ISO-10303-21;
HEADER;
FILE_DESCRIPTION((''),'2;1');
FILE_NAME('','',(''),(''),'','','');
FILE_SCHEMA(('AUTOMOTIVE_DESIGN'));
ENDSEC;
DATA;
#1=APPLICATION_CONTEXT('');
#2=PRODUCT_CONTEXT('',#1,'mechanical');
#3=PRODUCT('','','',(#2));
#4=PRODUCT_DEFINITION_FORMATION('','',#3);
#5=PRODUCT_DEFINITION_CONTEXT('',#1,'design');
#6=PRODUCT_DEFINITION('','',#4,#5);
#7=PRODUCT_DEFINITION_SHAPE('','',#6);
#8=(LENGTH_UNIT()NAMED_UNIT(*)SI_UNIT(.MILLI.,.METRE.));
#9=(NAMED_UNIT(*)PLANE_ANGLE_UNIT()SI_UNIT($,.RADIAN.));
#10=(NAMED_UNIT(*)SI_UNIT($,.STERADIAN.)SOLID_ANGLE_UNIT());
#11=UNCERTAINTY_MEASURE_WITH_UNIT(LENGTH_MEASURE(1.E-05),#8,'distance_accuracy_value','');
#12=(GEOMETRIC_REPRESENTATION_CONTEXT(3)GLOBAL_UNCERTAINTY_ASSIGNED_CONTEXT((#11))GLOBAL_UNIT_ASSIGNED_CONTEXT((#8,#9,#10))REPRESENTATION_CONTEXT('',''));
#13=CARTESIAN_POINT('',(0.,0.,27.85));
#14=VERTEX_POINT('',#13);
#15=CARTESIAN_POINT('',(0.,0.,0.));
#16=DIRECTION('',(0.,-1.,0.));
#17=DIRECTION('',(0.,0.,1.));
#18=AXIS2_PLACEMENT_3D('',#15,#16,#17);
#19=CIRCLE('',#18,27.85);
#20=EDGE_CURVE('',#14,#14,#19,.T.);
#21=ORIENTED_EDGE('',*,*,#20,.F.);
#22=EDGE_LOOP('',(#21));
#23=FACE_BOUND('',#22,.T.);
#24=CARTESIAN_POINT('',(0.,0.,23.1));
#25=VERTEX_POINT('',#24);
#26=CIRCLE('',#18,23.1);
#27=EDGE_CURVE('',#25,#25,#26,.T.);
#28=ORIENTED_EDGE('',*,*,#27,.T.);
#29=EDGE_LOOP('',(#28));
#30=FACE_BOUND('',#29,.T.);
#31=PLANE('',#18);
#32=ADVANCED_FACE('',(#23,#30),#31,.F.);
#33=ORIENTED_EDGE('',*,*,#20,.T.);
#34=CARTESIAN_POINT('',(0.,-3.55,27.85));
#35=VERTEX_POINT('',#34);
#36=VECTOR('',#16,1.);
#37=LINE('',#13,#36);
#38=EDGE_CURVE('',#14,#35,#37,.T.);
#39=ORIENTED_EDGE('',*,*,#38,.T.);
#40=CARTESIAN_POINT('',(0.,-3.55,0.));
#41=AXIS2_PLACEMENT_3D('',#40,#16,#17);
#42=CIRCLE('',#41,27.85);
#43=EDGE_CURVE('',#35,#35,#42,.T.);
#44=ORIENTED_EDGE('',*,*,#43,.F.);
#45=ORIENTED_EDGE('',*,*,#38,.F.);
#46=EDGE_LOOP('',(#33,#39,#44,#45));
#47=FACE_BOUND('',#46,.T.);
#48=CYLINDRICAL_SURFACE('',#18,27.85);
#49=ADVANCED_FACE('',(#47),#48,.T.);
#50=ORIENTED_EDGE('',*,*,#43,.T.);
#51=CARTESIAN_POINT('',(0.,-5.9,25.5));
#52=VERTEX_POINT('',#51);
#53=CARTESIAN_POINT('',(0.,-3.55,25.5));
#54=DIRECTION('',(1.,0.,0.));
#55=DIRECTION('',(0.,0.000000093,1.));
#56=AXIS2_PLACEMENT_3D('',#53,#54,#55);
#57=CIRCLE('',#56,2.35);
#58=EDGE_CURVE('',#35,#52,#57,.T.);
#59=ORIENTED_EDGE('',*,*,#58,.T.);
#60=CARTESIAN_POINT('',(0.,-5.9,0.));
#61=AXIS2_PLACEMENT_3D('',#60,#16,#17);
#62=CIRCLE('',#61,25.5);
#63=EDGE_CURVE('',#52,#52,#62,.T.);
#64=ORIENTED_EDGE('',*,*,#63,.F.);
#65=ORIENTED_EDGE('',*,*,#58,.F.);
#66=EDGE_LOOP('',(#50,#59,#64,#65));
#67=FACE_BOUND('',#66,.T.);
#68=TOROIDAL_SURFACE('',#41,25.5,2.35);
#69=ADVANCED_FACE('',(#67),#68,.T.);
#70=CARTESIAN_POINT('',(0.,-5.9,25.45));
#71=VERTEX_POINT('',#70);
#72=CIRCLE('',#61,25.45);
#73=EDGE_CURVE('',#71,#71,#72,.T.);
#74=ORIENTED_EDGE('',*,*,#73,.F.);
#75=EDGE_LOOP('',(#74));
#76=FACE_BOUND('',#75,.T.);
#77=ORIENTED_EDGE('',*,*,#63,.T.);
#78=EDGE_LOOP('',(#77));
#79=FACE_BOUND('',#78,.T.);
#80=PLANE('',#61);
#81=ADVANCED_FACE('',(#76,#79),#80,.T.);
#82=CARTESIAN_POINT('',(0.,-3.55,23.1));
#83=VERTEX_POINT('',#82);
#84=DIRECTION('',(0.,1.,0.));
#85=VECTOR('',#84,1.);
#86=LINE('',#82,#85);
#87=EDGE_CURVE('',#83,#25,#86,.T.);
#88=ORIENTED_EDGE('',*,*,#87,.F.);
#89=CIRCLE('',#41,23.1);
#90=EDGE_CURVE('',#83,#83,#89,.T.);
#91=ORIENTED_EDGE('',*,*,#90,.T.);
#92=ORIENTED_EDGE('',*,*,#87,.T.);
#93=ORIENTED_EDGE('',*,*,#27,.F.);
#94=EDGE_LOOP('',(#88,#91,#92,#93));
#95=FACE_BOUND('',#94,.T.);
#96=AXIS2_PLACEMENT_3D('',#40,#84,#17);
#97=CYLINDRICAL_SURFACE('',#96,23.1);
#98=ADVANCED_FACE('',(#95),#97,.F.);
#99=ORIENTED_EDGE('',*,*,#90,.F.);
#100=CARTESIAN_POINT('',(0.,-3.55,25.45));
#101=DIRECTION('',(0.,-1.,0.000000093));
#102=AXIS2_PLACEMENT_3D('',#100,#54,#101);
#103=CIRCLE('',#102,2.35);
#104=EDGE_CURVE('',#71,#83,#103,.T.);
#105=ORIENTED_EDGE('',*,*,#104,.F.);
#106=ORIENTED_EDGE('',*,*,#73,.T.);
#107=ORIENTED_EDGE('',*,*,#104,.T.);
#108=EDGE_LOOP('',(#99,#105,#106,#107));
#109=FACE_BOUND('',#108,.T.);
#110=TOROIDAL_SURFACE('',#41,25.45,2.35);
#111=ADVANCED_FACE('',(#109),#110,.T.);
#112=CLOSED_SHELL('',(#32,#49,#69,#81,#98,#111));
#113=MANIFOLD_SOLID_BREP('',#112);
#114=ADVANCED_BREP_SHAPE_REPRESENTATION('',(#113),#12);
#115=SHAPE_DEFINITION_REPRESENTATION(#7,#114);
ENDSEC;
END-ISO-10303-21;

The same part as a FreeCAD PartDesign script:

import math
import FreeCAD as App
import Part
import Sketcher
Q = App.Units.Quantity

doc = App.newDocument("Part")
body = doc.addObject("PartDesign::Body", "Body")

sketch1 = doc.addObject("Sketcher::SketchObject", "Sketch")
body.addObject(sketch1)
sketch1.AttachmentSupport = (doc.YZ_Plane, [""])
sketch1.MapMode = "FlatFace"
sketch1.addGeometry([
    Part.LineSegment(App.Vector(-3.55, 23.1, 0), App.Vector(0, 23.1, 0)),
    Part.LineSegment(App.Vector(0, 23.1, 0), App.Vector(0, 27.85, 0)),
    Part.LineSegment(App.Vector(0, 27.85, 0), App.Vector(-3.55, 27.85, 0)),
    Part.ArcOfCircle(Part.Circle(App.Vector(-3.55, 25.5, 0), App.Vector(0, 0, 1), 2.35), math.radians(89.999995), math.radians(180.000005)),
    Part.LineSegment(App.Vector(-5.9, 25.5, 0), App.Vector(-5.9, 25.45, 0)),
    Part.ArcOfCircle(Part.Circle(App.Vector(-3.55, 25.45, 0), App.Vector(0, 0, 1), 2.35), math.radians(179.999995), math.radians(270.000005)),
], False)
sketch1.addConstraint([
    Sketcher.Constraint("Coincident", 0, 2, 1, 1),
    Sketcher.Constraint("Coincident", 1, 2, 2, 1),
    Sketcher.Constraint("Tangent", 2, 2, 3, 1),
    Sketcher.Constraint("Tangent", 3, 2, 4, 1),
    Sketcher.Constraint("Tangent", 4, 2, 5, 1),
    Sketcher.Constraint("Tangent", 5, 2, 0, 1),
    Sketcher.Constraint("Horizontal", 0),
    Sketcher.Constraint("Vertical", 1),
    Sketcher.Constraint("Horizontal", 2),
    Sketcher.Constraint("Vertical", 4),
    Sketcher.Constraint("Equal", 3, 5),
    Sketcher.Constraint("PointOnObject", 0, 2, -2),
    Sketcher.Constraint("Radius", 3, Q("2.35 mm")),
    Sketcher.Constraint("DistanceX", 0, 1, 0, 2, Q("3.55 mm")),
    Sketcher.Constraint("DistanceY", 1, 1, 1, 2, Q("4.75 mm")),
    Sketcher.Constraint("DistanceY", -1, 1, 3, 3, Q("25.5 mm")),
])
revolution = doc.addObject("PartDesign::Revolution", "Revolution")
body.addObject(revolution)
revolution.Profile = sketch1
revolution.ReferenceAxis = (sketch1, ["H_Axis"])
revolution.Angle = 360

doc.recompute()
